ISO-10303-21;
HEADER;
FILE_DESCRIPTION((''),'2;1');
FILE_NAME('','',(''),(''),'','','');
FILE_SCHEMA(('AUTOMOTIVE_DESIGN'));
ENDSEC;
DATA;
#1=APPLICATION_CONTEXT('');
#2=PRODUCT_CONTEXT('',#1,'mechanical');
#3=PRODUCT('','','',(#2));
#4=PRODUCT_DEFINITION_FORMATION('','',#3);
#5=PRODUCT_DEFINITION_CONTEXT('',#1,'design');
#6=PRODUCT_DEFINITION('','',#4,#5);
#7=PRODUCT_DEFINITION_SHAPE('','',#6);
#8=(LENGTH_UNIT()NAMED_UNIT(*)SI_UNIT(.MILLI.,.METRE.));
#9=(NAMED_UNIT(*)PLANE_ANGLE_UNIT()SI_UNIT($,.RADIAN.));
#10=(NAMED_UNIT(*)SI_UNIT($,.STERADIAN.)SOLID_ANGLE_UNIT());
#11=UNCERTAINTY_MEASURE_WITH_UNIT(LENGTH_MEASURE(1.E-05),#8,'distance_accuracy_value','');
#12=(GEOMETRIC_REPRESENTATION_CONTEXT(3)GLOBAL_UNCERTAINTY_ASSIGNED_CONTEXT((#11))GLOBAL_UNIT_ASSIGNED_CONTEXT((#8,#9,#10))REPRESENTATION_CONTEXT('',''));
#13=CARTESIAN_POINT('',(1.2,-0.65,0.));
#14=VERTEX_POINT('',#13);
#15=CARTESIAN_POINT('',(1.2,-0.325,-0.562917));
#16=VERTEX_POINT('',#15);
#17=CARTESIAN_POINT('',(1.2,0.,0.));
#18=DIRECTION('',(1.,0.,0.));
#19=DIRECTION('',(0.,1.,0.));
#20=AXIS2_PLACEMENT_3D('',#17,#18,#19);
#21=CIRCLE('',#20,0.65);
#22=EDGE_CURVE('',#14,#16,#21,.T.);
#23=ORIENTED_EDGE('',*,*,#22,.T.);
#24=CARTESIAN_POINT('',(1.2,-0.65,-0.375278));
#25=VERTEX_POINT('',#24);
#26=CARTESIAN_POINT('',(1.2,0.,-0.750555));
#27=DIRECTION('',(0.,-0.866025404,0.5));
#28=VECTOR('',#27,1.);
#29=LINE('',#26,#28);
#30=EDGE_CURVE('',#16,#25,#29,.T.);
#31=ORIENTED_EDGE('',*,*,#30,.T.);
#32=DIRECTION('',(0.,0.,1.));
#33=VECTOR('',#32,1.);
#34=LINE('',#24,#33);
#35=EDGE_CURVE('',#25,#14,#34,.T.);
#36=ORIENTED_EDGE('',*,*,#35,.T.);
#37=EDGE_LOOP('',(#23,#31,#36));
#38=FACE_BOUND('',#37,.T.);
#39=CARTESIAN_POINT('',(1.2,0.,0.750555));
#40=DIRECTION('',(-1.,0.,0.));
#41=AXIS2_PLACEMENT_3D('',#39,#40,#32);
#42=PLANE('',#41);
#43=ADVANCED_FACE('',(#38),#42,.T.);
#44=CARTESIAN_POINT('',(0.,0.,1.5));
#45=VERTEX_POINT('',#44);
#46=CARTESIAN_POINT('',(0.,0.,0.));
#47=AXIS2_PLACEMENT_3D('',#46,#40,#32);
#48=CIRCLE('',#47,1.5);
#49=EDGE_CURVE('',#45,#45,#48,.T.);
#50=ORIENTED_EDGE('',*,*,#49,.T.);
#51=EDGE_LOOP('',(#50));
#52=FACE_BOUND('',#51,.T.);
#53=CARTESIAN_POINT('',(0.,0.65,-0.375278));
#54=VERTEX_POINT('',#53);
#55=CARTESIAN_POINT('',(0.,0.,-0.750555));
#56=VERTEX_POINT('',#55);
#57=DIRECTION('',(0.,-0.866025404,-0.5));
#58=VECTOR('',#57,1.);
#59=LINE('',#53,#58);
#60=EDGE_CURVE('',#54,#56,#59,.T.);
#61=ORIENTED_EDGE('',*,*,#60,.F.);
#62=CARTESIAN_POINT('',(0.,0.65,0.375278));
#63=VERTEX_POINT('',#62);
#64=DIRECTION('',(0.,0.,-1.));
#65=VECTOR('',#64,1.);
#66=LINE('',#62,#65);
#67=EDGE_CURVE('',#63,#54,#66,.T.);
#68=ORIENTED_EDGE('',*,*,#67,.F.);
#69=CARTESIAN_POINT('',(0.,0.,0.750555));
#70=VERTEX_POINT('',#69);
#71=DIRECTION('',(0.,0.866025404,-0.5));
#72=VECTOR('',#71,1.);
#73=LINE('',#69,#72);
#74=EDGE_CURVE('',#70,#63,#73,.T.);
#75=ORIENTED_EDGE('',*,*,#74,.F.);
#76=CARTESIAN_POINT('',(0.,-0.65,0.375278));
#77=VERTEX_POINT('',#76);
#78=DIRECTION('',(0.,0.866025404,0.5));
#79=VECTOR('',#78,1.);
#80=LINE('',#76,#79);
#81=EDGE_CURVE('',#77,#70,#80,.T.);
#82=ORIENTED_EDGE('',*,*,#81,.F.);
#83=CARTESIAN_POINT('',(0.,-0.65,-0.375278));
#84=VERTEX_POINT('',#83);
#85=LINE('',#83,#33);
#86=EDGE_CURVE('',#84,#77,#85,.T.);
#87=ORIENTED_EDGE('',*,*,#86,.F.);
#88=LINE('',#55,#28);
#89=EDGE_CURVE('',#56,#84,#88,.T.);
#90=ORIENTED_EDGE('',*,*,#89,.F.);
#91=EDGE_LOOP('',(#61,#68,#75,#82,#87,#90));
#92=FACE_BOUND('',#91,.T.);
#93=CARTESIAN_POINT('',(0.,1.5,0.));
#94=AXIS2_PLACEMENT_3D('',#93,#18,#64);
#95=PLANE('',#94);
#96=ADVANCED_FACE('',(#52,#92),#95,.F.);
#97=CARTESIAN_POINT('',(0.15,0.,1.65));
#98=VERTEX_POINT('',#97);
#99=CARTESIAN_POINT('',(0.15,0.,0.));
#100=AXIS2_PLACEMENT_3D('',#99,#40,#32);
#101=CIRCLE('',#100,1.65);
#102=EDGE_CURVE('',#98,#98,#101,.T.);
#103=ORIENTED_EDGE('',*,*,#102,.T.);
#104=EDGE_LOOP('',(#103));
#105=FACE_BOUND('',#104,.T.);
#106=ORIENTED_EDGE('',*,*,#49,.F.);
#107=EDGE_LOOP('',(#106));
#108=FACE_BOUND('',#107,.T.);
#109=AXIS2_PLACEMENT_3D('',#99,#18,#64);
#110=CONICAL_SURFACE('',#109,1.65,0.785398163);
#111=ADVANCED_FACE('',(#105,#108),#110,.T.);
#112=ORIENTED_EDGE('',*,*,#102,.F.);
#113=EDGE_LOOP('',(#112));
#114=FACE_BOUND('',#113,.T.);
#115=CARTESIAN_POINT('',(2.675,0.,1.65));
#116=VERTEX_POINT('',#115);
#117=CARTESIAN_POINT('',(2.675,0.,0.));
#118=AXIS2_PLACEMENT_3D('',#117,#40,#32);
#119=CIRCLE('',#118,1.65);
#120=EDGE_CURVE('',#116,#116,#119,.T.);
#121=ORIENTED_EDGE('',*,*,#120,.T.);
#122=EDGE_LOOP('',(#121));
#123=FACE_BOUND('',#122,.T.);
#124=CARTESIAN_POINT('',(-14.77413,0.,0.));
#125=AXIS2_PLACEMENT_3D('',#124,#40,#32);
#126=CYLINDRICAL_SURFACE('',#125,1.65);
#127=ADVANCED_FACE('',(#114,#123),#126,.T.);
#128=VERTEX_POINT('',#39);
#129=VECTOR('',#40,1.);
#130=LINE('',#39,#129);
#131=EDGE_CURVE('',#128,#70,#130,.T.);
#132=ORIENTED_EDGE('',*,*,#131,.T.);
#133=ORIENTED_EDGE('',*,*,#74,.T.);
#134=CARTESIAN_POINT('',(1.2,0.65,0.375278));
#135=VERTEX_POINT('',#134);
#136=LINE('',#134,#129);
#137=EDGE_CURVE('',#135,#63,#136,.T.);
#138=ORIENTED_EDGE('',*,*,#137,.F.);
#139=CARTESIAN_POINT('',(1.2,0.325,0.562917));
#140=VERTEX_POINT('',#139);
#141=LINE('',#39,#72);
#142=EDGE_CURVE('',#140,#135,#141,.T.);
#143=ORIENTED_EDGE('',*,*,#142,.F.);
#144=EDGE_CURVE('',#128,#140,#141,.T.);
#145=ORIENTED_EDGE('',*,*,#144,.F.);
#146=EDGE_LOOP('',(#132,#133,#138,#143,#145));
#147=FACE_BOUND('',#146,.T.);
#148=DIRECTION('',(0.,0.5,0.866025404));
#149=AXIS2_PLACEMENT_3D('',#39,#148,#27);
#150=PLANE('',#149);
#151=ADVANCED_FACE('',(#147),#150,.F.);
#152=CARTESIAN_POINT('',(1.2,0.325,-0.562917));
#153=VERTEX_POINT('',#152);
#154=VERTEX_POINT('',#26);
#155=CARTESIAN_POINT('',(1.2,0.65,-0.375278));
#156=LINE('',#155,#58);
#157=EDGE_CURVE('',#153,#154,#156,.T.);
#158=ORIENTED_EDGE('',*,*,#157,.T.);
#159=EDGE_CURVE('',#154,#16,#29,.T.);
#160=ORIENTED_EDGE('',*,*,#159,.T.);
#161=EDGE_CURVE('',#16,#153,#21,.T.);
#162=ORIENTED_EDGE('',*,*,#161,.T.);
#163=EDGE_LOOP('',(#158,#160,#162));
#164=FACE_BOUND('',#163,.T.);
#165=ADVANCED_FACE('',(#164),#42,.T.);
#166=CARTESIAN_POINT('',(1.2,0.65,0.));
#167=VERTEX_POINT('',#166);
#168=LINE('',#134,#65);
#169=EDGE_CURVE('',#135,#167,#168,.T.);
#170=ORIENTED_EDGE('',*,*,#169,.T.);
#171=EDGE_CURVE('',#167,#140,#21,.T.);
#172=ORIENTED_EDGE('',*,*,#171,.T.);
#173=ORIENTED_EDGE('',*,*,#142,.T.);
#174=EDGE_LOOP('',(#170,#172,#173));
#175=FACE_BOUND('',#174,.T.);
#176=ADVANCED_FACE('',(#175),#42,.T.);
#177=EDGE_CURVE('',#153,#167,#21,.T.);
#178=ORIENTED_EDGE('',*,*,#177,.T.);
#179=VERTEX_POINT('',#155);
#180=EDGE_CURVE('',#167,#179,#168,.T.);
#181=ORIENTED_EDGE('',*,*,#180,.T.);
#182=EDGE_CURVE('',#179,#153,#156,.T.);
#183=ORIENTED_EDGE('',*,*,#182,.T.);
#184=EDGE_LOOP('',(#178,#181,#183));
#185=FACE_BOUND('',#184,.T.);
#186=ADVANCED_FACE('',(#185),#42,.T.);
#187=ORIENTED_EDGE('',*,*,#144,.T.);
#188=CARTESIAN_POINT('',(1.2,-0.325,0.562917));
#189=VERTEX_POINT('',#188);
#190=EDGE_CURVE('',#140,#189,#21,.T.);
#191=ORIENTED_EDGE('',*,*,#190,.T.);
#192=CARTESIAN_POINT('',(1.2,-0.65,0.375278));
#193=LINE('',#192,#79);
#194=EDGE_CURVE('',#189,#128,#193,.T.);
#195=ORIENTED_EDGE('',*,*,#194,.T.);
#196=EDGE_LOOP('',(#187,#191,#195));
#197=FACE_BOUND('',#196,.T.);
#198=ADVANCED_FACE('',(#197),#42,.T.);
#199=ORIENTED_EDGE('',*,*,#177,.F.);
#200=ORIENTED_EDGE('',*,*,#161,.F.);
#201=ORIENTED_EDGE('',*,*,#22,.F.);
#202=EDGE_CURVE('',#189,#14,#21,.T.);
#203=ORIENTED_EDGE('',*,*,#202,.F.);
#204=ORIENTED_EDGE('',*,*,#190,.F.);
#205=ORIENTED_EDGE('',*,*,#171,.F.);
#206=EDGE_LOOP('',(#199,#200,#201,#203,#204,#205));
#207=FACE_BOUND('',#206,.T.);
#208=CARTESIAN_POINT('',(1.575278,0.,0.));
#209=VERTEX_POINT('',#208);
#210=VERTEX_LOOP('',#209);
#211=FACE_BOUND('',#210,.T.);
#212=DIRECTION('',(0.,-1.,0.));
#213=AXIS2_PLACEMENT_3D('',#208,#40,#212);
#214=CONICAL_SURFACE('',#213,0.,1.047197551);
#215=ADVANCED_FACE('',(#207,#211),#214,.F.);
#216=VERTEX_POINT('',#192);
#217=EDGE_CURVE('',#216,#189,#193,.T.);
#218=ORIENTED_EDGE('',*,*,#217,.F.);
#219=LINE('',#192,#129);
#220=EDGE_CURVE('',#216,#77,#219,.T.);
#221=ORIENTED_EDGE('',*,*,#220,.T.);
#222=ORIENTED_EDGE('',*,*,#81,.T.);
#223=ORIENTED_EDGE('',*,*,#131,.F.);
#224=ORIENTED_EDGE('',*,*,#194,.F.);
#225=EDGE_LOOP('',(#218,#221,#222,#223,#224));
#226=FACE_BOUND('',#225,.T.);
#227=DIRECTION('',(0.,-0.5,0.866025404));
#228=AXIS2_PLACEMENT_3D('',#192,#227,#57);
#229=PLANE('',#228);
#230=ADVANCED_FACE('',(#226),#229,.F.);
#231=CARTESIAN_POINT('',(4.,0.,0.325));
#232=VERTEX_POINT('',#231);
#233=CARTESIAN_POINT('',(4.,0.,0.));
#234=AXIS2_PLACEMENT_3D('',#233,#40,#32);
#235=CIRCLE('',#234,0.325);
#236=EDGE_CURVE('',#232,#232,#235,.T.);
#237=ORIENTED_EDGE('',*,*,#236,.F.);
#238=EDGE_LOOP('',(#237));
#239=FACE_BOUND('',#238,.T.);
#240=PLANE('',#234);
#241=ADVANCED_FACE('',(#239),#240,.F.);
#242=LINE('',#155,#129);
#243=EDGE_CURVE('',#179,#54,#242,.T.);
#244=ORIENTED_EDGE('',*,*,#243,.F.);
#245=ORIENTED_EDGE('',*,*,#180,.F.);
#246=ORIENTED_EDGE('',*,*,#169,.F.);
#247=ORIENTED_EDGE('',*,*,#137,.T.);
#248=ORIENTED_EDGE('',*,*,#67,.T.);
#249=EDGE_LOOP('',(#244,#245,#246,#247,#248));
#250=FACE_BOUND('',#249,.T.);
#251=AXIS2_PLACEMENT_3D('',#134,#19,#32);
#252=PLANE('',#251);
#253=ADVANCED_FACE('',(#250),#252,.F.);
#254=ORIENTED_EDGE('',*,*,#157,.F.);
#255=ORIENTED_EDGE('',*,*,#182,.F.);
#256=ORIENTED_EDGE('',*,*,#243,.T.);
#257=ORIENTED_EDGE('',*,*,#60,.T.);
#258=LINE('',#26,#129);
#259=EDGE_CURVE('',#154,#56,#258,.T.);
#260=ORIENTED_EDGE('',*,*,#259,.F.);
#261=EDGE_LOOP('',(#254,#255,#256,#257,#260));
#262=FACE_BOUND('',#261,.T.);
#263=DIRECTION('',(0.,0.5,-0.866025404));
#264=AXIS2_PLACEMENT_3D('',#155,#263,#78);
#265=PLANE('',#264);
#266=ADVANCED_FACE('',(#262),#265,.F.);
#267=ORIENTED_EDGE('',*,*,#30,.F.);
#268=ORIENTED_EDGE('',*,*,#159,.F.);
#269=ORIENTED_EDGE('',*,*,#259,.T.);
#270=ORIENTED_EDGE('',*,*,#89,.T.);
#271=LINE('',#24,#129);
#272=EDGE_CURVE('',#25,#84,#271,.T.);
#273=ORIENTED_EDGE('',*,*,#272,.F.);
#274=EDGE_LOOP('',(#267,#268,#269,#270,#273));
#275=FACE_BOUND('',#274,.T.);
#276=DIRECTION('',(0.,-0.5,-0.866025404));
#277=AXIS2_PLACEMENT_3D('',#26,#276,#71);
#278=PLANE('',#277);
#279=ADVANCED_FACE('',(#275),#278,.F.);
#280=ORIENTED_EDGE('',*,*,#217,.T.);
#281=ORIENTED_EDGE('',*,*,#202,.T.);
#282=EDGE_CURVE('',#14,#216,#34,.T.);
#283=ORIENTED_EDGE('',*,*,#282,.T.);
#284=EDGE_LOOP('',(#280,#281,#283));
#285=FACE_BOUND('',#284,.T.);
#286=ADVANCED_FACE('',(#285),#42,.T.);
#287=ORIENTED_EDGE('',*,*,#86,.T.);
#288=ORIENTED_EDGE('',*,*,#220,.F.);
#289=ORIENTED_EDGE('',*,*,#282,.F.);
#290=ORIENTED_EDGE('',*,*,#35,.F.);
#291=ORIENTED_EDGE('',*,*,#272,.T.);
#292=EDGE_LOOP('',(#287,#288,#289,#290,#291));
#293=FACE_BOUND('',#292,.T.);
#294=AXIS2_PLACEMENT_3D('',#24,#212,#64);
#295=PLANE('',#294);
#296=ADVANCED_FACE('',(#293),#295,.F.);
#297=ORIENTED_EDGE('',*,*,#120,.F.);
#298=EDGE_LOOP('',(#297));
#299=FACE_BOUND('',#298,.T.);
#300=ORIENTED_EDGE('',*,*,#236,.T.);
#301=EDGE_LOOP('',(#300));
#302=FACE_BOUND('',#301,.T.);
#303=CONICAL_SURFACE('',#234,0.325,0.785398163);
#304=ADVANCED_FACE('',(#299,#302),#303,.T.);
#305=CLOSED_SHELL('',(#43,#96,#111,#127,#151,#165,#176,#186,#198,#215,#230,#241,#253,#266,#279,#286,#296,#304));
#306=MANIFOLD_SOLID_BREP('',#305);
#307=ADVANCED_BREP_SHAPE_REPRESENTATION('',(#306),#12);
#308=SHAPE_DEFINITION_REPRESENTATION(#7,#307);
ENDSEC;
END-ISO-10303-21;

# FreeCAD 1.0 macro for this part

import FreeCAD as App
import Part
import Sketcher

V = App.Vector
Q = App.Units.Quantity


def add_polygon(sketch, points):
    """Adds a closed chain of lines whose ends are joined by coincident constraints."""
    first, n = sketch.GeometryCount, len(points)
    for a, b in zip(points, points[1:] + points[:1]):
        sketch.addGeometry(Part.LineSegment(App.Vector(*a, 0), App.Vector(*b, 0)), False)
    for i in range(n):
        sketch.addConstraint(Sketcher.Constraint("Coincident", first + i, 2, first + (i + 1) % n, 1))

doc = App.newDocument("Part")
params = doc.addObject("Spreadsheet::Sheet", "Params")
for row, (alias, value) in enumerate([
    ("sketch1_width", "4 mm"),
    ("sketch1_height", "1.5 mm"),
    ("revolution_angle", "360 deg"),
    ("pocket1_length", "1.2 mm"),
    ("sketch3_height", "0.65 mm"),
    ("groove_angle", "360 deg"),
], start=1):
    params.set(f"A{row}", alias)
    params.set(f"B{row}", "=" + value)
    params.setAlias(f"B{row}", alias)

body = doc.addObject("PartDesign::Body", "Body")

# Sketch on XY plane
sketch1 = body.newObject("Sketcher::SketchObject", "Sketch")
sketch1.AttachmentSupport = (doc.getObject("XY_Plane"), [""])
sketch1.MapMode = "FlatFace"
add_polygon(sketch1, [(0, 0), (4, 0), (4, 0.33), (2.67, 1.65), (0.15, 1.65), (0, 1.5)])  # lines 0-5
sketch1.addConstraint(Sketcher.Constraint("Horizontal", 0))
sketch1.addConstraint(Sketcher.Constraint("Vertical", 1))
sketch1.addConstraint(Sketcher.Constraint("Horizontal", 3))
sketch1.addConstraint(Sketcher.Constraint("Vertical", 5))
sketch1.addConstraint(Sketcher.Constraint("Coincident", 5, 2, -1, 1))
sketch1.addConstraint(Sketcher.Constraint("Perpendicular", 2, 4))
sketch1.addConstraint(Sketcher.Constraint("DistanceX", 0, 1, 0, 2, 4.0))
sketch1.addConstraint(Sketcher.Constraint("Angle", 2, Q("135 deg")))
sketch1.addConstraint(Sketcher.Constraint("DistanceY", 5, 2, 5, 1, 1.5))
sketch1.addConstraint(Sketcher.Constraint("DistanceX", 3, 2, 3, 1, 2.525))
sketch1.addConstraint(Sketcher.Constraint("DistanceY", 1, 1, 1, 2, 0.325))
sketch1.setExpression("Constraints[12]", "Params.sketch1_width")
sketch1.setExpression("Constraints[14]", "Params.sketch1_height")
revolution = body.newObject("PartDesign::Revolution", "Revolution")
revolution.Profile = sketch1
revolution.ReferenceAxis = (sketch1, ["H_Axis"])
revolution.setExpression("Angle", "Params.revolution_angle")

# Sketch on YZ plane
sketch2 = body.newObject("Sketcher::SketchObject", "Sketch001")
sketch2.AttachmentSupport = (doc.getObject("YZ_Plane"), [""])
sketch2.MapMode = "FlatFace"
add_polygon(sketch2, [(0, 0.8), (0.7, 0.4), (0.7, -0.4), (0, -0.8), (-0.7, -0.4), (-0.7, 0.4)])  # lines 0-5
sketch2.addConstraint(Sketcher.Constraint("Vertical", 1))
sketch2.addConstraint(Sketcher.Constraint("Vertical", 4))
sketch2.addConstraint(Sketcher.Constraint("Symmetric", 0, 2, 3, 2, -1, 1))
sketch2.addConstraint(Sketcher.Constraint("Symmetric", 2, 2, 5, 2, -1, 1))
sketch2.addConstraint(Sketcher.Constraint("PointOnObject", 2, 2, -2))
sketch2.addConstraint(Sketcher.Constraint("Parallel", 2, 5))
sketch2.addConstraint(Sketcher.Constraint("Horizontal", 1, 2, 3, 2))
sketch2.addConstraint(Sketcher.Constraint("Angle", 0, Q("-30 deg")))
sketch2.addConstraint(Sketcher.Constraint("DistanceX", 3, 2, 1, 2, 1.3))
sketch2.addConstraint(Sketcher.Constraint("DistanceY", 1, 2, 1, 1, 0.750555))
pocket1 = body.newObject("PartDesign::Pocket", "Pocket")
pocket1.Profile = sketch2
pocket1.setExpression("Length", "Params.pocket1_length")
pocket1.Reversed = True

# Sketch on XY plane
sketch3 = body.newObject("Sketcher::SketchObject", "Sketch002")
sketch3.AttachmentSupport = (doc.getObject("XY_Plane"), [""])
sketch3.MapMode = "FlatFace"
add_polygon(sketch3, [(1.58, 0), (1.2, 0.65), (1.2, 0)])  # lines 0-2
sketch3.addConstraint(Sketcher.Constraint("Vertical", 1))
sketch3.addConstraint(Sketcher.Constraint("Horizontal", 2))
sketch3.addConstraint(Sketcher.Constraint("PointOnObject", 1, 2, -1))
sketch3.addConstraint(Sketcher.Constraint("Angle", 0, Q("120 deg")))
sketch3.addConstraint(Sketcher.Constraint("DistanceY", 1, 2, 1, 1, 0.65))
sketch3.addConstraint(Sketcher.Constraint("DistanceX", -1, 1, 0, 2, 1.2))
sketch3.setExpression("Constraints[7]", "Params.sketch3_height")
groove = body.newObject("PartDesign::Groove", "Groove")
groove.Profile = sketch3
groove.ReferenceAxis = (sketch3, ["H_Axis"])
groove.setExpression("Angle", "Params.groove_angle")

doc.recompute()
